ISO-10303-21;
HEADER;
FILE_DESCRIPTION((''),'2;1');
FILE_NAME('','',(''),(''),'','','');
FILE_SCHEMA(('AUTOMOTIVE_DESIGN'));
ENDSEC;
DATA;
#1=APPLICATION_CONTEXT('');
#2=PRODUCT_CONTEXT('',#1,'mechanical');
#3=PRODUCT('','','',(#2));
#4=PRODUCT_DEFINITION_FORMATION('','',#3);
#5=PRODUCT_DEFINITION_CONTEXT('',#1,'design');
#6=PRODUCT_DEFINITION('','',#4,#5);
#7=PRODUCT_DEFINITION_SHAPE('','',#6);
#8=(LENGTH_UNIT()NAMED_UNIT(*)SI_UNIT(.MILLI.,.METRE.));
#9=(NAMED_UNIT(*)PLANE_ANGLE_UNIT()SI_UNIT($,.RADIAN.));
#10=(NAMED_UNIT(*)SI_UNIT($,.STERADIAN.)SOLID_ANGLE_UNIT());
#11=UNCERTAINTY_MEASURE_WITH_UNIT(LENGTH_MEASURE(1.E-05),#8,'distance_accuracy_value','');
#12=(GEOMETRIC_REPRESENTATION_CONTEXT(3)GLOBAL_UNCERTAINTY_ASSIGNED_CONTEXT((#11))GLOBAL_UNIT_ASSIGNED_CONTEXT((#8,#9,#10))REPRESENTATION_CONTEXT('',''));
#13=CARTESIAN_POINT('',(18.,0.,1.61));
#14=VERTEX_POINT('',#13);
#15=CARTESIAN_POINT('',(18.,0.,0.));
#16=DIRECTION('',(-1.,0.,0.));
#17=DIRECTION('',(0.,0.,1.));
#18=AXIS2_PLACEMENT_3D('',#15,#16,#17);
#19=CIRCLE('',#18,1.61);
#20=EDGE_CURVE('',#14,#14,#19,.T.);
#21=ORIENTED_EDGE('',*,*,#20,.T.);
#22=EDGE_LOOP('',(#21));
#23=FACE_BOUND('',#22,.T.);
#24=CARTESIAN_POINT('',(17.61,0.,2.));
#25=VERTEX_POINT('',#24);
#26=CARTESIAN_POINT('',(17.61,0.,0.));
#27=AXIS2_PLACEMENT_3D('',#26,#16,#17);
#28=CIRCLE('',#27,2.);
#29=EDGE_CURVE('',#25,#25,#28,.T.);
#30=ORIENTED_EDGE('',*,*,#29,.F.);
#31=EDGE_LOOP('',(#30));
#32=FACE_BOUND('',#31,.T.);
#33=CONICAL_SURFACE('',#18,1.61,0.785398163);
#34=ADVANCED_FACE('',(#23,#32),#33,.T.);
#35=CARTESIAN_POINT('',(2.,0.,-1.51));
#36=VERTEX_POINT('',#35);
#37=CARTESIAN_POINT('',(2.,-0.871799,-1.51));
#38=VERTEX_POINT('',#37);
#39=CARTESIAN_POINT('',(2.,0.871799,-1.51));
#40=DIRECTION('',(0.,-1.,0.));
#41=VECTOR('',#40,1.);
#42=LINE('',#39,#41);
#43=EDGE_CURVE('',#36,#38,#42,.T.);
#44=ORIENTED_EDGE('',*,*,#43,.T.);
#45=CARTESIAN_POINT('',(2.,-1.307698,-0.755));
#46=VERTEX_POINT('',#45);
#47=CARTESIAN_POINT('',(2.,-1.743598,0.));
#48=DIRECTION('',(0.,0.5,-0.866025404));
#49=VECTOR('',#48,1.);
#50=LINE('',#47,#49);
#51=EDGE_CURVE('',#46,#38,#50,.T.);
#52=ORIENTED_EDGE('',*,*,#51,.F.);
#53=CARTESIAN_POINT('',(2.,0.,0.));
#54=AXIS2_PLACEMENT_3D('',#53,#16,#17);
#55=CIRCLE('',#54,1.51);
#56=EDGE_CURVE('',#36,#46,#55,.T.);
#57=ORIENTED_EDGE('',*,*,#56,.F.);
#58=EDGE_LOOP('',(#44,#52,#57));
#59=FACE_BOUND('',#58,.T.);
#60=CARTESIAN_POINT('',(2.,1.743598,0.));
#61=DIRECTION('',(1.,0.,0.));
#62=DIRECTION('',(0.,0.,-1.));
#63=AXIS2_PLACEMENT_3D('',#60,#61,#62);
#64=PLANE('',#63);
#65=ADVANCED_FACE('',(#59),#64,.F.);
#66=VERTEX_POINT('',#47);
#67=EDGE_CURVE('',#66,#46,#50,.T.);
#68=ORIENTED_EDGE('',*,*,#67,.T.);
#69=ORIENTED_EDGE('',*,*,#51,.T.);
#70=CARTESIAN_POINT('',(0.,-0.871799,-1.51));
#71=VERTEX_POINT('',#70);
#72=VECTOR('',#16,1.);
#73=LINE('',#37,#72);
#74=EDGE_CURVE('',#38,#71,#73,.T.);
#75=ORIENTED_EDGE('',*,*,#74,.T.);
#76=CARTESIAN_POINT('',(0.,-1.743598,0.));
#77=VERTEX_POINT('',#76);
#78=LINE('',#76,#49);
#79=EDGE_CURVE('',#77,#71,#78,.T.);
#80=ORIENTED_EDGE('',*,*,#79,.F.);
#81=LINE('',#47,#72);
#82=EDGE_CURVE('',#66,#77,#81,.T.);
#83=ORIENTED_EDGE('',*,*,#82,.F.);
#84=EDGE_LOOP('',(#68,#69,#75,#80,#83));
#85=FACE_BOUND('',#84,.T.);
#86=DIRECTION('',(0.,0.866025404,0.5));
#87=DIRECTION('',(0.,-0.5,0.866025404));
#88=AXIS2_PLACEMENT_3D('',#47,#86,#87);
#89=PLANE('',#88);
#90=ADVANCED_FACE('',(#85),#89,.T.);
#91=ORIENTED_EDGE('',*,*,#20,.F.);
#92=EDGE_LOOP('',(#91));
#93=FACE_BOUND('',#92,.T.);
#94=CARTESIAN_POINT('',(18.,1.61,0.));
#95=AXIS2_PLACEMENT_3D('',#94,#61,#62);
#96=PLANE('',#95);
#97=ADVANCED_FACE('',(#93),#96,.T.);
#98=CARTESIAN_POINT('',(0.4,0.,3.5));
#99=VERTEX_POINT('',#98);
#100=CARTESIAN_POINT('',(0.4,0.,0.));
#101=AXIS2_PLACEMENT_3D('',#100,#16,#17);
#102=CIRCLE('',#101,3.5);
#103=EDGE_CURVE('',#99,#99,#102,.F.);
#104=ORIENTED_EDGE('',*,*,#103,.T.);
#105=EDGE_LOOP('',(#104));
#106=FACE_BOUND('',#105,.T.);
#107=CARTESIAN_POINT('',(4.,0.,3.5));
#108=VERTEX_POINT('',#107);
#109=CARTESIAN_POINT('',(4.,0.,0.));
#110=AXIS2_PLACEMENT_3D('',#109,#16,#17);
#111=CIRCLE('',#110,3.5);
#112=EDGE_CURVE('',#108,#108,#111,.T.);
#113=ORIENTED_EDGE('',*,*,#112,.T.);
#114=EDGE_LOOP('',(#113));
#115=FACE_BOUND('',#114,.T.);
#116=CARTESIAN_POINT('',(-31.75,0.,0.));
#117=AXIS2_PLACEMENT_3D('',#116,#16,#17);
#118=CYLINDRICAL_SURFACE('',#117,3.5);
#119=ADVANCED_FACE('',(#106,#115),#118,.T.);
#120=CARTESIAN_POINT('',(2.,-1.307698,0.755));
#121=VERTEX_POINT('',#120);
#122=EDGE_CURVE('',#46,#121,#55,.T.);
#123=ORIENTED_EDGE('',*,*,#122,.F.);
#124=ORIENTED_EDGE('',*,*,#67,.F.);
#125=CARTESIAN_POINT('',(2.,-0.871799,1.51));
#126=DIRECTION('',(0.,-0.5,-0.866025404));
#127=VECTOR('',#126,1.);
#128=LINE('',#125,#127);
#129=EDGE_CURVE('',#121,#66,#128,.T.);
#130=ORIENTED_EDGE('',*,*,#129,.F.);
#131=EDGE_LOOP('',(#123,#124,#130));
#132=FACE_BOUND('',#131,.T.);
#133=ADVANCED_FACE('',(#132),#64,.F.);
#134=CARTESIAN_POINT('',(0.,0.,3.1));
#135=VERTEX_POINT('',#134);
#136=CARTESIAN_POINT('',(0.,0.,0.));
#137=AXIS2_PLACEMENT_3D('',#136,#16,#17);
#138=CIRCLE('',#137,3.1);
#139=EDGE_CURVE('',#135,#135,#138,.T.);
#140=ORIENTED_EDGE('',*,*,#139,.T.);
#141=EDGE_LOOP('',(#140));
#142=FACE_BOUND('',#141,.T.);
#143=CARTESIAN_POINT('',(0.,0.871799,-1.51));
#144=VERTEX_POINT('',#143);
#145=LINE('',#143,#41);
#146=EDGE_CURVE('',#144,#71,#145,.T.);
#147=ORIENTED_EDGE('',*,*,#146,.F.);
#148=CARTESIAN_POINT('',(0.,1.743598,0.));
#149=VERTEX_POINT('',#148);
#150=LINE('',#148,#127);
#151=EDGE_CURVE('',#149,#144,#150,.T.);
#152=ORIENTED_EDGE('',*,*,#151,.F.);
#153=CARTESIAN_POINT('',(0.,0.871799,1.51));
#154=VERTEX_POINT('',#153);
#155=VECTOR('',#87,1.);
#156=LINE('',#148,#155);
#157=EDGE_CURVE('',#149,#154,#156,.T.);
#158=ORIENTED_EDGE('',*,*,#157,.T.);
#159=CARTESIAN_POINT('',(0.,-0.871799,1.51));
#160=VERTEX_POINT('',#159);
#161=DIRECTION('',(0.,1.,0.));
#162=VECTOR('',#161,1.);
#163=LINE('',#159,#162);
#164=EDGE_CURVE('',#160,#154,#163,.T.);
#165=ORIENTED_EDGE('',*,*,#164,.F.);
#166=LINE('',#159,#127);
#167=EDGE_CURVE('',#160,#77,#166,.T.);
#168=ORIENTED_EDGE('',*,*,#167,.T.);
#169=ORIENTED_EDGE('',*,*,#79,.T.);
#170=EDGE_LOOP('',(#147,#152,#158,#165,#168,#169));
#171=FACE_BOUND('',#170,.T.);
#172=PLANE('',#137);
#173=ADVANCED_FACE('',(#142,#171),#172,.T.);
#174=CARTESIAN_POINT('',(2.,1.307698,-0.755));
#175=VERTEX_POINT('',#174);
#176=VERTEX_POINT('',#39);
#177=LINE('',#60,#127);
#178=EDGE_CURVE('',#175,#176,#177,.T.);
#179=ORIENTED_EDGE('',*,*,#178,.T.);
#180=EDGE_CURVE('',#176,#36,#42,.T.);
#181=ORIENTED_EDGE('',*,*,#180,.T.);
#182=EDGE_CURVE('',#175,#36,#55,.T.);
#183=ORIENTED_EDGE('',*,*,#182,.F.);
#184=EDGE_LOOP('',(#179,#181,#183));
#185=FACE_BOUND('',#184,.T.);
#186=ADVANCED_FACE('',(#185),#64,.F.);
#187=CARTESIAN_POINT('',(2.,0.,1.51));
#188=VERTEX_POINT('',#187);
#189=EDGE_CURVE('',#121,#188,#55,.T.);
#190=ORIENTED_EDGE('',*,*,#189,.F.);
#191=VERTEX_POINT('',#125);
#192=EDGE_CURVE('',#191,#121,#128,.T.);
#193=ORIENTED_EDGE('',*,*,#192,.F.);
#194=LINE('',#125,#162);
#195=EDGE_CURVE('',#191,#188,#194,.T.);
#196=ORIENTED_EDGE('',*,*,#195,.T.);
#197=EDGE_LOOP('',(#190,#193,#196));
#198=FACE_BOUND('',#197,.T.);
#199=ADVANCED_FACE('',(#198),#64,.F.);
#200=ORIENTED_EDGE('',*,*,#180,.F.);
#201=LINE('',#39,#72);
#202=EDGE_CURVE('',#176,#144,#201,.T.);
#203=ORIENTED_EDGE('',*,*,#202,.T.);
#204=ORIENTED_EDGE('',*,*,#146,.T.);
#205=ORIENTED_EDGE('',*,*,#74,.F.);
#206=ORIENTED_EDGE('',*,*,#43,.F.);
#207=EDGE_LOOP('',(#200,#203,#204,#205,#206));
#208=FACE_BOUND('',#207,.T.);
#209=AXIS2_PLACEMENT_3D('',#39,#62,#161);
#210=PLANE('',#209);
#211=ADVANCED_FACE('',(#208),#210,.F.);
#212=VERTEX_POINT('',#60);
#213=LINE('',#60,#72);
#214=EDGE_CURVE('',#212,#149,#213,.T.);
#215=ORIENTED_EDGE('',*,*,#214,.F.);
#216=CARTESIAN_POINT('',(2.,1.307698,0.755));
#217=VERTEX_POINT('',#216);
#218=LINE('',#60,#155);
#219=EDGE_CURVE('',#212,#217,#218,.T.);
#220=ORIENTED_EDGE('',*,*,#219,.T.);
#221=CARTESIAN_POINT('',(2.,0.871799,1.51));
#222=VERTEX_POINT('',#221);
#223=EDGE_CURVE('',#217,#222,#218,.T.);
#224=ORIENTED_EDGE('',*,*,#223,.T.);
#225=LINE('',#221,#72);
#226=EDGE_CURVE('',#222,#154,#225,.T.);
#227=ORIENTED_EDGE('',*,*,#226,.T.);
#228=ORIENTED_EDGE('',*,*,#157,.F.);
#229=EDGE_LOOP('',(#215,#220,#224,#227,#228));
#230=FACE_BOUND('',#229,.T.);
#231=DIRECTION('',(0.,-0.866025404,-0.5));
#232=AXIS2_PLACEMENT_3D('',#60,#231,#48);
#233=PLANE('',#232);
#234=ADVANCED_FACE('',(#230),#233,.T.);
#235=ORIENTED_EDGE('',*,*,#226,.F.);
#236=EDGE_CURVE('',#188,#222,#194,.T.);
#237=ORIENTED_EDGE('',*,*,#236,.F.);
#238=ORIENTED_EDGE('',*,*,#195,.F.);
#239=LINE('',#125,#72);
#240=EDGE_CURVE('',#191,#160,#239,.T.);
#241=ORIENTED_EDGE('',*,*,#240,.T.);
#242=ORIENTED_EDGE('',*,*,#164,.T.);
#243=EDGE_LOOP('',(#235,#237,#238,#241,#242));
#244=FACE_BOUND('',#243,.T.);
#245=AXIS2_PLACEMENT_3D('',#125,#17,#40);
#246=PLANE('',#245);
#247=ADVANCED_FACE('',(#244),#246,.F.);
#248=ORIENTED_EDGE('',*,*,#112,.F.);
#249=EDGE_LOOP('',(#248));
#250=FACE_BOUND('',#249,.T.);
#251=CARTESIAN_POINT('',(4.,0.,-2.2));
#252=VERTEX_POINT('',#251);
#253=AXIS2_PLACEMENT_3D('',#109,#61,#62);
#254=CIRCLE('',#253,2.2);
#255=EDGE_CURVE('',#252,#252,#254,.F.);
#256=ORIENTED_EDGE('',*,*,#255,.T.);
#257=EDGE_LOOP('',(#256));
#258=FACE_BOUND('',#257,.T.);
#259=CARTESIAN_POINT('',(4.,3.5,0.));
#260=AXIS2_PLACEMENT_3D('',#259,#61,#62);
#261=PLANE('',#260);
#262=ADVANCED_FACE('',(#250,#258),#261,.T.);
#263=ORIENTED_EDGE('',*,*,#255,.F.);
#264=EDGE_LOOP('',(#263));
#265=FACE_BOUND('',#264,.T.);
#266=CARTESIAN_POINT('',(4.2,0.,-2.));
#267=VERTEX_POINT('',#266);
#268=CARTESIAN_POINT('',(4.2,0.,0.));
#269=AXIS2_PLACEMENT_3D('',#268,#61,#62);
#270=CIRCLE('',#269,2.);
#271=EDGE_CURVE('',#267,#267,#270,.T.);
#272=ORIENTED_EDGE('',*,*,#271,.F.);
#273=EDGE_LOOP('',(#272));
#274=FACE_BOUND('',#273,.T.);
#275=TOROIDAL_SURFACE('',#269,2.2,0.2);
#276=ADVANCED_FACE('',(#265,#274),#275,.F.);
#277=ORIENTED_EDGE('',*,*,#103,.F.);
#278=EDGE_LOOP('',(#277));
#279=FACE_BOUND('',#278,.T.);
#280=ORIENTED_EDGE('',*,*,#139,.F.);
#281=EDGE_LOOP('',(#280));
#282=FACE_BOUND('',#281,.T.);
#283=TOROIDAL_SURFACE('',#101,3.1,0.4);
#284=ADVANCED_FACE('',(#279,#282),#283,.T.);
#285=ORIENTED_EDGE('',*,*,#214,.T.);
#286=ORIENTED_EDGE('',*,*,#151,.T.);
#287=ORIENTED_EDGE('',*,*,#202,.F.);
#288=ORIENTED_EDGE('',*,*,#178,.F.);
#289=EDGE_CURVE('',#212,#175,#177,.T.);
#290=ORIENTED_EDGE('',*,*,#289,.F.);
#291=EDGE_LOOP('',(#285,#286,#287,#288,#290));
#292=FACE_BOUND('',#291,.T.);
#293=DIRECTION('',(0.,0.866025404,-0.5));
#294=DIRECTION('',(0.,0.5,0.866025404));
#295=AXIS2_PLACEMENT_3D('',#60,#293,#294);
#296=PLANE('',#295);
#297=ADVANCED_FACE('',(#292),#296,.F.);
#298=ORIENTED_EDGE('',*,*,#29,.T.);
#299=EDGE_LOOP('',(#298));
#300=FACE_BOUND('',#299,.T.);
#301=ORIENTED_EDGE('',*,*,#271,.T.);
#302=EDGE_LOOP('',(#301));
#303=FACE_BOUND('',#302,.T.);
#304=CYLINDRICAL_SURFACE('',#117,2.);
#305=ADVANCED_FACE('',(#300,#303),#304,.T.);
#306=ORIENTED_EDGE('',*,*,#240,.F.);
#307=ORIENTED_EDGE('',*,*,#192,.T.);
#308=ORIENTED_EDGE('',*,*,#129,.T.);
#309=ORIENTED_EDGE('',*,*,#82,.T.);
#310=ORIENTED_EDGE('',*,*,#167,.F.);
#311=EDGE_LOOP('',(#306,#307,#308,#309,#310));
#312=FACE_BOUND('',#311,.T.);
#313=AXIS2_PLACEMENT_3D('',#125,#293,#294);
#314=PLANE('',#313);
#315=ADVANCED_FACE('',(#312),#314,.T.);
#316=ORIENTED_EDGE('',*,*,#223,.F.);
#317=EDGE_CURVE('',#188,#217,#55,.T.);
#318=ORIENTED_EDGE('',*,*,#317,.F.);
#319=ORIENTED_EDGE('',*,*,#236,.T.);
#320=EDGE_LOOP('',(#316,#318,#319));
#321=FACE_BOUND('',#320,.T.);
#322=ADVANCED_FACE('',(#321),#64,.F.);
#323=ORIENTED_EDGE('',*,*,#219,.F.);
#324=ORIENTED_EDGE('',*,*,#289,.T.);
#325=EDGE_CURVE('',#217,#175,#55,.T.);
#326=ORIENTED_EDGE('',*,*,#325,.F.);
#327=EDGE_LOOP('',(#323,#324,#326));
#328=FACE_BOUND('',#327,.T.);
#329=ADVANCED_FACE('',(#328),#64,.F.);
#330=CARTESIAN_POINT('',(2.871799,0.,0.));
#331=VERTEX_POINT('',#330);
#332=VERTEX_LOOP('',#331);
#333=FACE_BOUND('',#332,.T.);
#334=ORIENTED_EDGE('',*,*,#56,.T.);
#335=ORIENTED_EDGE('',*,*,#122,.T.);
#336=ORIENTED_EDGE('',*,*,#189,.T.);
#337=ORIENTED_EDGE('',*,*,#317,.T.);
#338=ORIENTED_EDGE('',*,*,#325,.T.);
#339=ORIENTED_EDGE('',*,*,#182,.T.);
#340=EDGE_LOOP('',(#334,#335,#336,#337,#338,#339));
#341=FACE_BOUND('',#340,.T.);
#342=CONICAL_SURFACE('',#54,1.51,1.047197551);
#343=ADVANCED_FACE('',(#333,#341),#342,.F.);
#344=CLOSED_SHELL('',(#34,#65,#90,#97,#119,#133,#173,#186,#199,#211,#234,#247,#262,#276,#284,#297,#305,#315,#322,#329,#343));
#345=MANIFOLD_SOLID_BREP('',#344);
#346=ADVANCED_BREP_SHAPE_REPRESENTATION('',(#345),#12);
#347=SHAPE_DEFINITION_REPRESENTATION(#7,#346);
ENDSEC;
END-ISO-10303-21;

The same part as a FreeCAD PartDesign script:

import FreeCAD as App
import Part
import Sketcher
Q = App.Units.Quantity


def edges_at(feature, points):
    """Names of the edges that pass closest to the given points."""
    edges = feature.Shape.Edges
    near = lambda p: min(range(len(edges)), key=lambda i: edges[i].distToShape(Part.Vertex(*p))[0])
    return sorted({f"Edge{near(p) + 1}" for p in points})


def add_polygon(sketch, points):
    """Adds a closed chain of lines whose ends are joined by coincident constraints."""
    first, n = sketch.GeometryCount, len(points)
    for a, b in zip(points, points[1:] + points[:1]):
        sketch.addGeometry(Part.LineSegment(App.Vector(*a, 0), App.Vector(*b, 0)), False)
    for i in range(n):
        sketch.addConstraint(Sketcher.Constraint("Coincident", first + i, 2, first + (i + 1) % n, 1))

doc = App.newDocument("Part")
body = doc.addObject("PartDesign::Body", "Body")

# Sketch on XY plane
sketch1 = body.newObject("Sketcher::SketchObject", "Sketch")
sketch1.AttachmentSupport = (doc.getObject("XY_Plane"), [""])
sketch1.MapMode = "FlatFace"
add_polygon(sketch1, [(0, 3.5), (0, 0), (18, 0), (18, 1.6), (17.6, 2), (4, 2), (4, 3.5)])  # lines 0-6
sketch1.addConstraint([
    Sketcher.Constraint("Vertical", 0),
    Sketcher.Constraint("Horizontal", 1),
    Sketcher.Constraint("Vertical", 2),
    Sketcher.Constraint("Horizontal", 4),
    Sketcher.Constraint("Vertical", 5),
    Sketcher.Constraint("Horizontal", 6),
    Sketcher.Constraint("Coincident", 0, 2, -1, 1),
    Sketcher.Constraint("DistanceX", 1, 1, 1, 2, Q("18 mm")),
    Sketcher.Constraint("DistanceX", 6, 2, 6, 1, Q("4 mm")),
    Sketcher.Constraint("Angle", 3, Q("135 deg")),
    Sketcher.Constraint("DistanceY", 0, 2, 0, 1, Q("3.5 mm")),
    Sketcher.Constraint("DistanceY", 5, 1, 5, 2, Q("1.5 mm")),
    Sketcher.Constraint("DistanceX", 4, 2, 4, 1, Q("13.61 mm")),
])
revolution = body.newObject("PartDesign::Revolution", "Revolution")
revolution.Profile = sketch1
revolution.ReferenceAxis = (sketch1, ["H_Axis"])
revolution.Angle = 360
doc.recompute()

fillet = body.newObject("PartDesign::Fillet", "Fillet")
fillet.Base = (revolution, edges_at(revolution, [(4, -2, 0)]))
fillet.Radius = 0.2
doc.recompute()

fillet2 = body.newObject("PartDesign::Fillet", "Fillet001")
fillet2.Base = (fillet, edges_at(fillet, [(0, -3.5, 0)]))
fillet2.Radius = 0.4

# Sketch on XY plane
sketch2 = body.newObject("Sketcher::SketchObject", "Sketch001")
sketch2.AttachmentSupport = (doc.getObject("XY_Plane"), [""])
sketch2.MapMode = "FlatFace"
add_polygon(sketch2, [(2, 1.5), (0, 1.5), (0, 0), (2.9, 0)])  # lines 0-3
sketch2.addConstraint([
    Sketcher.Constraint("Horizontal", 0),
    Sketcher.Constraint("Vertical", 1),
    Sketcher.Constraint("Horizontal", 2),
    Sketcher.Constraint("Coincident", 1, 2, -1, 1),
    Sketcher.Constraint("DistanceX", 0, 2, 0, 1, Q("2 mm")),
    Sketcher.Constraint("Angle", 3, Q("120 deg")),
    Sketcher.Constraint("DistanceY", 1, 2, 1, 1, Q("1.51 mm")),
])
groove = body.newObject("PartDesign::Groove", "Groove")
groove.Profile = sketch2
groove.ReferenceAxis = (sketch2, ["H_Axis"])
groove.Angle = 360

# Sketch on YZ plane
sketch3 = body.newObject("Sketcher::SketchObject", "Sketch002")
sketch3.AttachmentSupport = (doc.getObject("YZ_Plane"), [""])
sketch3.MapMode = "FlatFace"
add_polygon(sketch3, [(1.7, 0), (0.9, -1.5), (-0.9, -1.5), (-1.7, 0), (-0.9, 1.5), (0.9, 1.5)])  # lines 0-5
sketch3.addConstraint([
    Sketcher.Constraint("Horizontal", 1),
    Sketcher.Constraint("Horizontal", 4),
    Sketcher.Constraint("Symmetric", 0, 2, 3, 2, -1, 1),
    Sketcher.Constraint("Symmetric", 2, 2, 5, 2, -1, 1),
    Sketcher.Constraint("PointOnObject", 2, 2, -1),
    Sketcher.Constraint("Parallel", 2, 5),
    Sketcher.Constraint("Vertical", 1, 2, 3, 2),
    Sketcher.Constraint("Angle", 0, Q("-120 deg")),
    Sketcher.Constraint("DistanceY", 0, 2, -1, 1, Q("1.51 mm")),
    Sketcher.Constraint("DistanceX", -1, 1, 0, 2, Q("0.871799 mm")),
])
pocket1 = body.newObject("PartDesign::Pocket", "Pocket")
pocket1.Profile = sketch3
pocket1.Length = 2
pocket1.Reversed = True

doc.recompute()
